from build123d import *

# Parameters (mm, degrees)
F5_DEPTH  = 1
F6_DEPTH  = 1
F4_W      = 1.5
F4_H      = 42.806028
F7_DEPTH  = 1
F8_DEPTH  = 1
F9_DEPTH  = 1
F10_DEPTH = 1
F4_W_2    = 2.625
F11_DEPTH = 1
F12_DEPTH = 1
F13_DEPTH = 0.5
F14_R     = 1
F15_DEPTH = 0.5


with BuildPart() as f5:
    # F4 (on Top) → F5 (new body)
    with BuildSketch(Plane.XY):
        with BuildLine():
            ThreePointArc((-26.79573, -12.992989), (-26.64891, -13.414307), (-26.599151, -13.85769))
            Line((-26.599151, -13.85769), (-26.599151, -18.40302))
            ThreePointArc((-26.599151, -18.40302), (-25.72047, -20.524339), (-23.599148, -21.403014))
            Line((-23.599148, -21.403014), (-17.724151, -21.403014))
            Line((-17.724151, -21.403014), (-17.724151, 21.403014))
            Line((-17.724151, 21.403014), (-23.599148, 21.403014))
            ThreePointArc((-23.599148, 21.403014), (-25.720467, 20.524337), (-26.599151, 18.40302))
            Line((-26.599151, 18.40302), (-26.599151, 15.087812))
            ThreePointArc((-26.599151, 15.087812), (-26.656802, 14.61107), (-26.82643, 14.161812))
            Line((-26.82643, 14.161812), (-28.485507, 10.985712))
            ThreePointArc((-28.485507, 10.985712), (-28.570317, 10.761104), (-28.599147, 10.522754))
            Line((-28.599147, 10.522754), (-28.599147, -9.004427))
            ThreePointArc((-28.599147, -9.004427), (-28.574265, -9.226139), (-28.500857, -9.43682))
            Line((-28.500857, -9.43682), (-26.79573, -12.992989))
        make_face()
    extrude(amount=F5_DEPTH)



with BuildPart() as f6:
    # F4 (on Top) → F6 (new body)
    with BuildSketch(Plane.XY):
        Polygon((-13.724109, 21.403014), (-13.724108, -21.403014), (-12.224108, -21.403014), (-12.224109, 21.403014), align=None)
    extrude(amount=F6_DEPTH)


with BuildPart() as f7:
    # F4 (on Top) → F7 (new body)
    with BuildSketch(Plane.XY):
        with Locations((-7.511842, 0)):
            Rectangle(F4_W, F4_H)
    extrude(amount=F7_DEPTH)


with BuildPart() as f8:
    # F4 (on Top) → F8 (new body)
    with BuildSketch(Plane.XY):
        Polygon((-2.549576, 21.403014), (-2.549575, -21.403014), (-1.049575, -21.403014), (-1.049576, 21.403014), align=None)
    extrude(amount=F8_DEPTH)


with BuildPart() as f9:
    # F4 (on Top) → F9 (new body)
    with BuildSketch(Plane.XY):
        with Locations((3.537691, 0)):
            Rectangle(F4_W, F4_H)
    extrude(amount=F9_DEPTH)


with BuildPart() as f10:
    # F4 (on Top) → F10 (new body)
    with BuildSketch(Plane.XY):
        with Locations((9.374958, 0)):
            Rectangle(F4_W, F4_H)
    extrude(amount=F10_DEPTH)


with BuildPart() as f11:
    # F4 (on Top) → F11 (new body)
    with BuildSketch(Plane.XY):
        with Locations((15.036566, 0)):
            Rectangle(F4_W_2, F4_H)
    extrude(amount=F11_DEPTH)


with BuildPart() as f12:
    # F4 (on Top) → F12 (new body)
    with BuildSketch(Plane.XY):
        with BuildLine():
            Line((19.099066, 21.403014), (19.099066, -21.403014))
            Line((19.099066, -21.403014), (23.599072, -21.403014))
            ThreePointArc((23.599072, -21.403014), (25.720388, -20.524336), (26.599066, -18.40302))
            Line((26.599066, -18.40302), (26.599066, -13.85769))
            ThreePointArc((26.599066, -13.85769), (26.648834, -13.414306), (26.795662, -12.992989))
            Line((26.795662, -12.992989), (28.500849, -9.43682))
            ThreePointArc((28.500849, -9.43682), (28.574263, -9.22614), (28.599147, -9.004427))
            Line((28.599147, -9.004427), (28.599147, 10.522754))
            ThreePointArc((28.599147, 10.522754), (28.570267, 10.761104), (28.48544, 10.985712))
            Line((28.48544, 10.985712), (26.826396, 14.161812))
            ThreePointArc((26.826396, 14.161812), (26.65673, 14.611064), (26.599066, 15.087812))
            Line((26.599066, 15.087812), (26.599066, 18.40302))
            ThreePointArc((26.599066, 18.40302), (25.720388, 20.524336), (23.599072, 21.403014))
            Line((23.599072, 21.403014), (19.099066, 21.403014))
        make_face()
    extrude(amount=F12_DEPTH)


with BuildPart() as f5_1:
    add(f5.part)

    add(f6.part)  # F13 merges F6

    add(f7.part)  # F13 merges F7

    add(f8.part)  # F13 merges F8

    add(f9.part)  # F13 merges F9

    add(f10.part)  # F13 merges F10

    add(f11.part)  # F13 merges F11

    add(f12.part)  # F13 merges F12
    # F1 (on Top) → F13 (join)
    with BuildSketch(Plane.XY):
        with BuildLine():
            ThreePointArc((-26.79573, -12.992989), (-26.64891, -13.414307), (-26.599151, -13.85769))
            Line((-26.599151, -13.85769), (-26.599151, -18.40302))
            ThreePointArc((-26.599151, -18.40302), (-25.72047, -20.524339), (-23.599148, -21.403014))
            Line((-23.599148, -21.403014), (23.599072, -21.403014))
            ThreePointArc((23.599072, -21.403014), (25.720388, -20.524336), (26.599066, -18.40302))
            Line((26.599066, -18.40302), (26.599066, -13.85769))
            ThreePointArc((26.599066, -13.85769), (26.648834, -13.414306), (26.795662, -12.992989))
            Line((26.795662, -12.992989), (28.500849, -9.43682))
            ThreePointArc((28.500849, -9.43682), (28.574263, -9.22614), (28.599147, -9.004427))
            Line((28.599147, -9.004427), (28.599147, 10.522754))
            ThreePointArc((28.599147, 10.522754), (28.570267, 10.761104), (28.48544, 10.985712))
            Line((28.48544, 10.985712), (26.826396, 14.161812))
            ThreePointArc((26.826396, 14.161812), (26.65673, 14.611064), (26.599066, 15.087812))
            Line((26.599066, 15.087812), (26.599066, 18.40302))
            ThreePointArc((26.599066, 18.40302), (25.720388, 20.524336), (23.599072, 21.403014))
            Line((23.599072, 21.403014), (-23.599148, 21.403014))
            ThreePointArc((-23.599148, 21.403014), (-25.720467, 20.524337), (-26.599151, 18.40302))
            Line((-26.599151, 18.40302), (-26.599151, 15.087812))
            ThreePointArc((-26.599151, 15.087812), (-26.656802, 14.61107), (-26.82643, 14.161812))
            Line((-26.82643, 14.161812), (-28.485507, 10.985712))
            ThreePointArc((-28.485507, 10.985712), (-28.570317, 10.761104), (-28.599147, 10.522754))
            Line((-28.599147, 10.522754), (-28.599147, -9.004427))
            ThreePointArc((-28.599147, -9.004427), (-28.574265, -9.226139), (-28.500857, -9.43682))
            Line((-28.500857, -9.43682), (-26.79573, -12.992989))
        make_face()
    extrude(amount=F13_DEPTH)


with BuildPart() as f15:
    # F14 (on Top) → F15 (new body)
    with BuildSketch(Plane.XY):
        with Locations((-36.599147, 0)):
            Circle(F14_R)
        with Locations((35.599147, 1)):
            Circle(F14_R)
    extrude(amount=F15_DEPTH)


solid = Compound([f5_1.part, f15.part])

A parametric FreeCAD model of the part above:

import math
import FreeCAD as App
import Part
import Sketcher
Q = App.Units.Quantity

doc = App.newDocument("Part")
body = doc.addObject("PartDesign::Body", "Body")

# Sketch on XY plane
sketch1 = body.newObject("Sketcher::SketchObject", "Sketch")
sketch1.AttachmentSupport = (doc.getObject("XY_Plane"), [""])
sketch1.MapMode = "FlatFace"
sketch1.addGeometry(Part.ArcOfCircle(Part.Circle(App.Vector(-28.599049, -13.857646, 0), App.Vector(0, 0, 1), 1.999898), math.radians(-0.001248), math.radians(25.616842)), False)
sketch1.addGeometry(Part.LineSegment(App.Vector(-26.599151, -13.85769, 0), App.Vector(-26.599151, -18.40302, 0)), False)
sketch1.addGeometry(Part.ArcOfCircle(Part.Circle(App.Vector(-23.599157, -18.40302, 0), App.Vector(0, 0, 1), 2.999994), math.radians(-179.999993), math.radians(-89.999835)), False)
sketch1.addGeometry(Part.LineSegment(App.Vector(-23.599148, -21.403014, 0), App.Vector(-17.724151, -21.403014, 0)), False)
sketch1.addGeometry(Part.LineSegment(App.Vector(-17.724151, -21.403014, 0), App.Vector(-17.724151, 21.403014, 0)), False)
sketch1.addGeometry(Part.LineSegment(App.Vector(-17.724151, 21.403014, 0), App.Vector(-23.599148, 21.403014, 0)), False)
sketch1.addGeometry(Part.ArcOfCircle(Part.Circle(App.Vector(-23.599148, 18.403011, 0), App.Vector(0, 0, 1), 3.000003), math.radians(89.999998), math.radians(179.99983)), False)
sketch1.addGeometry(Part.LineSegment(App.Vector(-26.599151, 18.40302, 0), App.Vector(-26.599151, 15.087812, 0)), False)
sketch1.addGeometry(Part.ArcOfCircle(Part.Circle(App.Vector(-28.599198, 15.087815, 0), App.Vector(0, 0, 1), 2.000047), math.radians(-27.58026), math.radians(-0.000084)), False)
sketch1.addGeometry(Part.LineSegment(App.Vector(-26.82643, 14.161812, 0), App.Vector(-28.485507, 10.985712, 0)), False)
sketch1.addGeometry(Part.ArcOfCircle(Part.Circle(App.Vector(-27.599153, 10.522717, 0), App.Vector(0, 0, 1), 0.999994), math.radians(152.419269), math.radians(179.997864)), False)
sketch1.addGeometry(Part.LineSegment(App.Vector(-28.599147, 10.522754, 0), App.Vector(-28.599147, -9.004427, 0)), False)
sketch1.addGeometry(Part.ArcOfCircle(Part.Circle(App.Vector(-27.59892, -9.004427, 0), App.Vector(0, 0, 1), 1.000227), math.radians(179.999993), math.radians(205.613293)), False)
sketch1.addGeometry(Part.LineSegment(App.Vector(-28.500857, -9.43682, 0), App.Vector(-26.79573, -12.992989, 0)), False)
sketch1.addConstraint(Sketcher.Constraint("Coincident", 0, 1, 1, 1))
sketch1.addConstraint(Sketcher.Constraint("Tangent", 1, 2, 2, 1))
sketch1.addConstraint(Sketcher.Constraint("Coincident", 2, 2, 3, 1))
sketch1.addConstraint(Sketcher.Constraint("Coincident", 3, 2, 4, 1))
sketch1.addConstraint(Sketcher.Constraint("Coincident", 4, 2, 5, 1))
sketch1.addConstraint(Sketcher.Constraint("Tangent", 5, 2, 6, 1))
sketch1.addConstraint(Sketcher.Constraint("Coincident", 6, 2, 7, 1))
sketch1.addConstraint(Sketcher.Constraint("Tangent", 7, 2, 8, 2))
sketch1.addConstraint(Sketcher.Constraint("Coincident", 8, 1, 9, 1))
sketch1.addConstraint(Sketcher.Constraint("Coincident", 9, 2, 10, 1))
sketch1.addConstraint(Sketcher.Constraint("Coincident", 10, 2, 11, 1))
sketch1.addConstraint(Sketcher.Constraint("Tangent", 11, 2, 12, 1))
sketch1.addConstraint(Sketcher.Constraint("Coincident", 12, 2, 13, 1))
sketch1.addConstraint(Sketcher.Constraint("Coincident", 13, 2, 0, 2))
sketch1.addConstraint(Sketcher.Constraint("Vertical", 1))
sketch1.addConstraint(Sketcher.Constraint("Horizontal", 3))
sketch1.addConstraint(Sketcher.Constraint("Vertical", 4))
sketch1.addConstraint(Sketcher.Constraint("Horizontal", 5))
sketch1.addConstraint(Sketcher.Constraint("Vertical", 7))
sketch1.addConstraint(Sketcher.Constraint("Vertical", 11))
sketch1.addConstraint(Sketcher.Constraint("Symmetric", 2, 2, 5, 2, -1))
sketch1.addConstraint(Sketcher.Constraint("Symmetric", 1, 2, 6, 2, -1))
sketch1.addConstraint(Sketcher.Constraint("DistanceX", 10, 3, 0, 1, Q("1.000002 mm")))
sketch1.addConstraint(Sketcher.Constraint("Radius", 0, Q("1.999898 mm")))
sketch1.addConstraint(Sketcher.Constraint("Radius", 2, Q("2.999994 mm")))
sketch1.addConstraint(Sketcher.Constraint("Radius", 6, Q("3.000003 mm")))
sketch1.addConstraint(Sketcher.Constraint("Radius", 8, Q("2.000047 mm")))
sketch1.addConstraint(Sketcher.Constraint("Radius", 10, Q("0.999994 mm")))
sketch1.addConstraint(Sketcher.Constraint("Radius", 12, Q("1.000227 mm")))
sketch1.addConstraint(Sketcher.Constraint("DistanceX", 1, 2, 3, 2, Q("8.875 mm")))
sketch1.addConstraint(Sketcher.Constraint("DistanceY", 8, 1, 7, 2, Q("0.926 mm")))
sketch1.addConstraint(Sketcher.Constraint("DistanceY", 1, 2, 1, 1, Q("4.54533 mm")))
sketch1.addConstraint(Sketcher.Constraint("DistanceY", 7, 2, 7, 1, Q("3.315208 mm")))
sketch1.addConstraint(Sketcher.Constraint("DistanceY", 11, 2, 11, 1, Q("19.527181 mm")))
sketch1.addConstraint(Sketcher.Constraint("DistanceY", 10, 3, 8, 3, Q("4.565098 mm")))
sketch1.addConstraint(Sketcher.Constraint("DistanceY", 9, 2, 8, 1, Q("3.1761 mm")))
sketch1.addConstraint(Sketcher.Constraint("DistanceY", 1, 2, 12, 2, Q("8.9662 mm")))
sketch1.addConstraint(Sketcher.Constraint("DistanceY", 0, 1, 13, 2, Q("0.864701 mm")))
sketch1.addConstraint(Sketcher.Constraint("Distance", 13, Q("3.94383 mm")))
sketch1.addConstraint(Sketcher.Constraint("DistanceY", 4, 1, 4, 2, Q("42.806028 mm")))
sketch1.addConstraint(Sketcher.Constraint("DistanceX", 0, 3, -1, 1, Q("28.599049 mm")))
sketch1.addConstraint(Sketcher.Constraint("DistanceX", 13, 2, -1, 1, Q("26.79573 mm")))
pad1 = body.newObject("PartDesign::Pad", "Pad")
pad1.Profile = sketch1
pad1.Length = 1
body2 = doc.addObject("PartDesign::Body", "Body001")

# Sketch on XY plane
sketch2 = body2.newObject("Sketcher::SketchObject", "Sketch001")
sketch2.AttachmentSupport = (doc.getObject("XY_Plane001"), [""])
sketch2.MapMode = "FlatFace"
sketch2.addGeometry(Part.LineSegment(App.Vector(-13.724109, 21.403014, 0), App.Vector(-13.724108, -21.403014, 0)), False)
sketch2.addGeometry(Part.LineSegment(App.Vector(-13.724108, -21.403014, 0), App.Vector(-12.224108, -21.403014, 0)), False)
sketch2.addGeometry(Part.LineSegment(App.Vector(-12.224108, -21.403014, 0), App.Vector(-12.224109, 21.403014, 0)), False)
sketch2.addGeometry(Part.LineSegment(App.Vector(-12.224109, 21.403014, 0), App.Vector(-13.724109, 21.403014, 0)), False)
sketch2.addConstraint(Sketcher.Constraint("Coincident", 0, 2, 1, 1))
sketch2.addConstraint(Sketcher.Constraint("Coincident", 1, 2, 2, 1))
sketch2.addConstraint(Sketcher.Constraint("Coincident", 2, 2, 3, 1))
sketch2.addConstraint(Sketcher.Constraint("Coincident", 3, 2, 0, 1))
sketch2.addConstraint(Sketcher.Constraint("Vertical", 0))
sketch2.addConstraint(Sketcher.Constraint("Horizontal", 1))
sketch2.addConstraint(Sketcher.Constraint("Vertical", 2))
sketch2.addConstraint(Sketcher.Constraint("Horizontal", 3))
sketch2.addConstraint(Sketcher.Constraint("DistanceX", 1, 1, 1, 2, Q("1.5 mm")))
sketch2.addConstraint(Sketcher.Constraint("DistanceY", 0, 2, 0, 1, Q("42.806028 mm")))
sketch2.addConstraint(Sketcher.Constraint("DistanceX", 2, 2, -1, 1, Q("12.224109 mm")))
sketch2.addConstraint(Sketcher.Constraint("DistanceY", 0, 2, -1, 1, Q("21.403014 mm")))
pad2 = body2.newObject("PartDesign::Pad", "Pad001")
pad2.Profile = sketch2
pad2.Length = 1
body3 = doc.addObject("PartDesign::Body", "Body002")

# Sketch on XY plane
sketch3 = body3.newObject("Sketcher::SketchObject", "Sketch002")
sketch3.AttachmentSupport = (doc.getObject("XY_Plane002"), [""])
sketch3.MapMode = "FlatFace"
sketch3.addGeometry(Part.LineSegment(App.Vector(-8.261842, 21.403014, 0), App.Vector(-8.261842, -21.403014, 0)), False)
sketch3.addGeometry(Part.LineSegment(App.Vector(-8.261842, -21.403014, 0), App.Vector(-6.761842, -21.403014, 0)), False)
sketch3.addGeometry(Part.LineSegment(App.Vector(-6.761842, -21.403014, 0), App.Vector(-6.761842, 21.403014, 0)), False)
sketch3.addGeometry(Part.LineSegment(App.Vector(-6.761842, 21.403014, 0), App.Vector(-8.261842, 21.403014, 0)), False)
sketch3.addConstraint(Sketcher.Constraint("Coincident", 0, 2, 1, 1))
sketch3.addConstraint(Sketcher.Constraint("Coincident", 1, 2, 2, 1))
sketch3.addConstraint(Sketcher.Constraint("Coincident", 2, 2, 3, 1))
sketch3.addConstraint(Sketcher.Constraint("Coincident", 3, 2, 0, 1))
sketch3.addConstraint(Sketcher.Constraint("Vertical", 0))
sketch3.addConstraint(Sketcher.Constraint("Horizontal", 1))
sketch3.addConstraint(Sketcher.Constraint("Vertical", 2))
sketch3.addConstraint(Sketcher.Constraint("Horizontal", 3))
sketch3.addConstraint(Sketcher.Constraint("DistanceX", 1, 1, 1, 2, Q("1.5 mm")))
sketch3.addConstraint(Sketcher.Constraint("DistanceY", 0, 2, 0, 1, Q("42.806028 mm")))
sketch3.addConstraint(Sketcher.Constraint("DistanceX", 1, 2, -1, 1, Q("6.761842 mm")))
sketch3.addConstraint(Sketcher.Constraint("DistanceY", 0, 2, -1, 1, Q("21.403014 mm")))
pad3 = body3.newObject("PartDesign::Pad", "Pad002")
pad3.Profile = sketch3
pad3.Length = 1
body4 = doc.addObject("PartDesign::Body", "Body003")

# Sketch on XY plane
sketch4 = body4.newObject("Sketcher::SketchObject", "Sketch003")
sketch4.AttachmentSupport = (doc.getObject("XY_Plane003"), [""])
sketch4.MapMode = "FlatFace"
sketch4.addGeometry(Part.LineSegment(App.Vector(-2.549576, 21.403014, 0), App.Vector(-2.549575, -21.403014, 0)), False)
sketch4.addGeometry(Part.LineSegment(App.Vector(-2.549575, -21.403014, 0), App.Vector(-1.049575, -21.403014, 0)), False)
sketch4.addGeometry(Part.LineSegment(App.Vector(-1.049575, -21.403014, 0), App.Vector(-1.049576, 21.403014, 0)), False)
sketch4.addGeometry(Part.LineSegment(App.Vector(-1.049576, 21.403014, 0), App.Vector(-2.549576, 21.403014, 0)), False)
sketch4.addConstraint(Sketcher.Constraint("Coincident", 0, 2, 1, 1))
sketch4.addConstraint(Sketcher.Constraint("Coincident", 1, 2, 2, 1))
sketch4.addConstraint(Sketcher.Constraint("Coincident", 2, 2, 3, 1))
sketch4.addConstraint(Sketcher.Constraint("Coincident", 3, 2, 0, 1))
sketch4.addConstraint(Sketcher.Constraint("Vertical", 0))
sketch4.addConstraint(Sketcher.Constraint("Horizontal", 1))
sketch4.addConstraint(Sketcher.Constraint("Vertical", 2))
sketch4.addConstraint(Sketcher.Constraint("Horizontal", 3))
sketch4.addConstraint(Sketcher.Constraint("DistanceX", 1, 1, 1, 2, Q("1.5 mm")))
sketch4.addConstraint(Sketcher.Constraint("DistanceY", 0, 2, 0, 1, Q("42.806028 mm")))
sketch4.addConstraint(Sketcher.Constraint("DistanceX", 0, 2, -1, 1, Q("2.549575 mm")))
sketch4.addConstraint(Sketcher.Constraint("DistanceY", 0, 2, -1, 1, Q("21.403014 mm")))
pad4 = body4.newObject("PartDesign::Pad", "Pad003")
pad4.Profile = sketch4
pad4.Length = 1
body5 = doc.addObject("PartDesign::Body", "Body004")

# Sketch on XY plane
sketch5 = body5.newObject("Sketcher::SketchObject", "Sketch004")
sketch5.AttachmentSupport = (doc.getObject("XY_Plane004"), [""])
sketch5.MapMode = "FlatFace"
sketch5.addGeometry(Part.LineSegment(App.Vector(2.787691, 21.403014, 0), App.Vector(2.787691, -21.403014, 0)), False)
sketch5.addGeometry(Part.LineSegment(App.Vector(2.787691, -21.403014, 0), App.Vector(4.287691, -21.403014, 0)), False)
sketch5.addGeometry(Part.LineSegment(App.Vector(4.287691, -21.403014, 0), App.Vector(4.287691, 21.403014, 0)), False)
sketch5.addGeometry(Part.LineSegment(App.Vector(4.287691, 21.403014, 0), App.Vector(2.787691, 21.403014, 0)), False)
sketch5.addConstraint(Sketcher.Constraint("Coincident", 0, 2, 1, 1))
sketch5.addConstraint(Sketcher.Constraint("Coincident", 1, 2, 2, 1))
sketch5.addConstraint(Sketcher.Constraint("Coincident", 2, 2, 3, 1))
sketch5.addConstraint(Sketcher.Constraint("Coincident", 3, 2, 0, 1))
sketch5.addConstraint(Sketcher.Constraint("Vertical", 0))
sketch5.addConstraint(Sketcher.Constraint("Horizontal", 1))
sketch5.addConstraint(Sketcher.Constraint("Vertical", 2))
sketch5.addConstraint(Sketcher.Constraint("Horizontal", 3))
sketch5.addConstraint(Sketcher.Constraint("DistanceX", 1, 1, 1, 2, Q("1.5 mm")))
sketch5.addConstraint(Sketcher.Constraint("DistanceY", 0, 2, 0, 1, Q("42.806028 mm")))
sketch5.addConstraint(Sketcher.Constraint("DistanceX", -1, 1, 0, 2, Q("2.787691 mm")))
sketch5.addConstraint(Sketcher.Constraint("DistanceY", 0, 2, -1, 1, Q("21.403014 mm")))
pad5 = body5.newObject("PartDesign::Pad", "Pad004")
pad5.Profile = sketch5
pad5.Length = 1
body6 = doc.addObject("PartDesign::Body", "Body005")

# Sketch on XY plane
sketch6 = body6.newObject("Sketcher::SketchObject", "Sketch005")
sketch6.AttachmentSupport = (doc.getObject("XY_Plane005"), [""])
sketch6.MapMode = "FlatFace"
sketch6.addGeometry(Part.LineSegment(App.Vector(8.624958, 21.403014, 0), App.Vector(8.624958, -21.403014, 0)), False)
sketch6.addGeometry(Part.LineSegment(App.Vector(8.624958, -21.403014, 0), App.Vector(10.124958, -21.403014, 0)), False)
sketch6.addGeometry(Part.LineSegment(App.Vector(10.124958, -21.403014, 0), App.Vector(10.124958, 21.403014, 0)), False)
sketch6.addGeometry(Part.LineSegment(App.Vector(10.124958, 21.403014, 0), App.Vector(8.624958, 21.403014, 0)), False)
sketch6.addConstraint(Sketcher.Constraint("Coincident", 0, 2, 1, 1))
sketch6.addConstraint(Sketcher.Constraint("Coincident", 1, 2, 2, 1))
sketch6.addConstraint(Sketcher.Constraint("Coincident", 2, 2, 3, 1))
sketch6.addConstraint(Sketcher.Constraint("Coincident", 3, 2, 0, 1))
sketch6.addConstraint(Sketcher.Constraint("Vertical", 0))
sketch6.addConstraint(Sketcher.Constraint("Horizontal", 1))
sketch6.addConstraint(Sketcher.Constraint("Vertical", 2))
sketch6.addConstraint(Sketcher.Constraint("Horizontal", 3))
sketch6.addConstraint(Sketcher.Constraint("DistanceX", 1, 1, 1, 2, Q("1.5 mm")))
sketch6.addConstraint(Sketcher.Constraint("DistanceY", 0, 2, 0, 1, Q("42.806028 mm")))
sketch6.addConstraint(Sketcher.Constraint("DistanceX", -1, 1, 0, 2, Q("8.624958 mm")))
sketch6.addConstraint(Sketcher.Constraint("DistanceY", 0, 2, -1, 1, Q("21.403014 mm")))
pad6 = body6.newObject("PartDesign::Pad", "Pad005")
pad6.Profile = sketch6
pad6.Length = 1
body7 = doc.addObject("PartDesign::Body", "Body006")

# Sketch on XY plane
sketch7 = body7.newObject("Sketcher::SketchObject", "Sketch006")
sketch7.AttachmentSupport = (doc.getObject("XY_Plane006"), [""])
sketch7.MapMode = "FlatFace"
sketch7.addGeometry(Part.LineSegment(App.Vector(13.724066, 21.403014, 0), App.Vector(13.724066, -21.403014, 0)), False)
sketch7.addGeometry(Part.LineSegment(App.Vector(13.724066, -21.403014, 0), App.Vector(16.349066, -21.403014, 0)), False)
sketch7.addGeometry(Part.LineSegment(App.Vector(16.349066, -21.403014, 0), App.Vector(16.349066, 21.403014, 0)), False)
sketch7.addGeometry(Part.LineSegment(App.Vector(16.349066, 21.403014, 0), App.Vector(13.724066, 21.403014, 0)), False)
sketch7.addConstraint(Sketcher.Constraint("Coincident", 0, 2, 1, 1))
sketch7.addConstraint(Sketcher.Constraint("Coincident", 1, 2, 2, 1))
sketch7.addConstraint(Sketcher.Constraint("Coincident", 2, 2, 3, 1))
sketch7.addConstraint(Sketcher.Constraint("Coincident", 3, 2, 0, 1))
sketch7.addConstraint(Sketcher.Constraint("Vertical", 0))
sketch7.addConstraint(Sketcher.Constraint("Horizontal", 1))
sketch7.addConstraint(Sketcher.Constraint("Vertical", 2))
sketch7.addConstraint(Sketcher.Constraint("Horizontal", 3))
sketch7.addConstraint(Sketcher.Constraint("DistanceX", 1, 1, 1, 2, Q("2.625 mm")))
sketch7.addConstraint(Sketcher.Constraint("DistanceY", 0, 2, 0, 1, Q("42.806028 mm")))
sketch7.addConstraint(Sketcher.Constraint("DistanceX", -1, 1, 0, 2, Q("13.724066 mm")))
sketch7.addConstraint(Sketcher.Constraint("DistanceY", 0, 2, -1, 1, Q("21.403014 mm")))
pad7 = body7.newObject("PartDesign::Pad", "Pad006")
pad7.Profile = sketch7
pad7.Length = 1
body8 = doc.addObject("PartDesign::Body", "Body007")

# Sketch on XY plane
sketch8 = body8.newObject("Sketcher::SketchObject", "Sketch007")
sketch8.AttachmentSupport = (doc.getObject("XY_Plane007"), [""])
sketch8.MapMode = "FlatFace"
sketch8.addGeometry(Part.LineSegment(App.Vector(19.099066, 21.403014, 0), App.Vector(19.099066, -21.403014, 0)), False)
sketch8.addGeometry(Part.LineSegment(App.Vector(19.099066, -21.403014, 0), App.Vector(23.599072, -21.403014, 0)), False)
sketch8.addGeometry(Part.ArcOfCircle(Part.Circle(App.Vector(23.599072, -18.40302, 0), App.Vector(0, 0, 1), 2.999994), math.radians(-89.999993), math.radians(-0.000007)), False)
sketch8.addGeometry(Part.LineSegment(App.Vector(26.599066, -18.40302, 0), App.Vector(26.599066, -13.85769, 0)), False)
sketch8.addGeometry(Part.ArcOfCircle(Part.Circle(App.Vector(28.598991, -13.857688, 0), App.Vector(0, 0, 1), 1.999925), math.radians(154.382209), math.radians(180.000055)), False)
sketch8.addGeometry(Part.LineSegment(App.Vector(26.795662, -12.992989, 0), App.Vector(28.500849, -9.43682, 0)), False)
sketch8.addGeometry(Part.ArcOfCircle(Part.Circle(App.Vector(27.598998, -9.004428, 0), App.Vector(0, 0, 1), 1.000149), math.radians(-25.615358), math.radians(0.000057)), False)
sketch8.addGeometry(Part.LineSegment(App.Vector(28.599147, -9.004427, 0), App.Vector(28.599147, 10.522754, 0)), False)
sketch8.addGeometry(Part.ArcOfCircle(Part.Circle(App.Vector(27.598546, 10.52244, 0), App.Vector(0, 0, 1), 1.000601), math.radians(0.018007), math.radians(27.580501)), False)
sketch8.addGeometry(Part.LineSegment(App.Vector(28.48544, 10.985712, 0), App.Vector(26.826396, 14.161812, 0)), False)
sketch8.addGeometry(Part.ArcOfCircle(Part.Circle(App.Vector(28.598706, 15.087813, 0), App.Vector(0, 0, 1), 1.99964), math.radians(-179.99998), math.radians(-152.413724)), False)
sketch8.addGeometry(Part.LineSegment(App.Vector(26.599066, 15.087812, 0), App.Vector(26.599066, 18.40302, 0)), False)
sketch8.addGeometry(Part.ArcOfCircle(Part.Circle(App.Vector(23.599072, 18.40302, 0), App.Vector(0, 0, 1), 2.999994), math.radians(0.000007), math.radians(89.999993)), False)
sketch8.addGeometry(Part.LineSegment(App.Vector(23.599072, 21.403014, 0), App.Vector(19.099066, 21.403014, 0)), False)
sketch8.addConstraint(Sketcher.Constraint("Coincident", 0, 2, 1, 1))
sketch8.addConstraint(Sketcher.Constraint("Tangent", 1, 2, 2, 1))
sketch8.addConstraint(Sketcher.Constraint("Tangent", 2, 2, 3, 1))
sketch8.addConstraint(Sketcher.Constraint("Tangent", 3, 2, 4, 2))
sketch8.addConstraint(Sketcher.Constraint("Tangent", 4, 1, 5, 1))
sketch8.addConstraint(Sketcher.Constraint("Coincident", 5, 2, 6, 1))
sketch8.addConstraint(Sketcher.Constraint("Tangent", 6, 2, 7, 1))
sketch8.addConstraint(Sketcher.Constraint("Coincident", 7, 2, 8, 1))
sketch8.addConstraint(Sketcher.Constraint("Tangent", 8, 2, 9, 1))
sketch8.addConstraint(Sketcher.Constraint("Coincident", 9, 2, 10, 2))
sketch8.addConstraint(Sketcher.Constraint("Tangent", 10, 1, 11, 1))
sketch8.addConstraint(Sketcher.Constraint("Tangent", 11, 2, 12, 1))
sketch8.addConstraint(Sketcher.Constraint("Tangent", 12, 2, 13, 1))
sketch8.addConstraint(Sketcher.Constraint("Coincident", 13, 2, 0, 1))
sketch8.addConstraint(Sketcher.Constraint("Vertical", 0))
sketch8.addConstraint(Sketcher.Constraint("Horizontal", 1))
sketch8.addConstraint(Sketcher.Constraint("Vertical", 3))
sketch8.addConstraint(Sketcher.Constraint("Vertical", 7))
sketch8.addConstraint(Sketcher.Constraint("Vertical", 11))
sketch8.addConstraint(Sketcher.Constraint("Horizontal", 13))
sketch8.addConstraint(Sketcher.Constraint("Equal", 2, 12))
sketch8.addConstraint(Sketcher.Constraint("Symmetric", 2, 3, 12, 3, -1))
sketch8.addConstraint(Sketcher.Constraint("Radius", 8, Q("1.000601 mm")))
sketch8.addConstraint(Sketcher.Constraint("DistanceX", 0, 2, 2, 2, Q("7.5 mm")))
sketch8.addConstraint(Sketcher.Constraint("Radius", 6, Q("1.000149 mm")))
sketch8.addConstraint(Sketcher.Constraint("Radius", 10, Q("1.99964 mm")))
sketch8.addConstraint(Sketcher.Constraint("Radius", 2, Q("2.999994 mm")))
sketch8.addConstraint(Sketcher.Constraint("Radius", 4, Q("1.999925 mm")))
sketch8.addConstraint(Sketcher.Constraint("DistanceY", 9, 2, 10, 3, Q("0.926001 mm")))
sketch8.addConstraint(Sketcher.Constraint("Distance", 9, Q("3.5833 mm")))
sketch8.addConstraint(Sketcher.Constraint("DistanceY", 3, 1, 3, 2, Q("4.54533 mm")))
sketch8.addConstraint(Sketcher.Constraint("DistanceY", 7, 1, 7, 2, Q("19.527181 mm")))
sketch8.addConstraint(Sketcher.Constraint("DistanceY", 11, 1, 11, 2, Q("3.315208 mm")))
sketch8.addConstraint(Sketcher.Constraint("DistanceY", 4, 3, 10, 3, Q("28.945501 mm")))
sketch8.addConstraint(Sketcher.Constraint("DistanceY", 3, 2, 4, 1, Q("0.864701 mm")))
sketch8.addConstraint(Sketcher.Constraint("DistanceY", 2, 2, 5, 2, Q("8.9662 mm")))
sketch8.addConstraint(Sketcher.Constraint("DistanceY", 8, 2, 10, 3, Q("4.102101 mm")))
sketch8.addConstraint(Sketcher.Constraint("DistanceX", -1, 1, 2, 3, Q("23.599072 mm")))
pad8 = body8.newObject("PartDesign::Pad", "Pad007")
pad8.Profile = sketch8
pad8.Length = 1
body.AllowCompound = True
doc.recompute()

boolean = body.newObject("PartDesign::Boolean", "Boolean")
boolean.Type = "Fuse"
boolean.addObjects([body2])
doc.recompute()

boolean2 = body.newObject("PartDesign::Boolean", "Boolean001")
boolean2.Type = "Fuse"
boolean2.addObjects([body3])
doc.recompute()

boolean3 = body.newObject("PartDesign::Boolean", "Boolean002")
boolean3.Type = "Fuse"
boolean3.addObjects([body4])
doc.recompute()

boolean4 = body.newObject("PartDesign::Boolean", "Boolean003")
boolean4.Type = "Fuse"
boolean4.addObjects([body5])
doc.recompute()

boolean5 = body.newObject("PartDesign::Boolean", "Boolean004")
boolean5.Type = "Fuse"
boolean5.addObjects([body6])
doc.recompute()

boolean6 = body.newObject("PartDesign::Boolean", "Boolean005")
boolean6.Type = "Fuse"
boolean6.addObjects([body7])
doc.recompute()

boolean7 = body.newObject("PartDesign::Boolean", "Boolean006")
boolean7.Type = "Fuse"
boolean7.addObjects([body8])

# Sketch on XY plane
sketch9 = body.newObject("Sketcher::SketchObject", "Sketch008")
sketch9.AttachmentSupport = (doc.getObject("XY_Plane"), [""])
sketch9.MapMode = "FlatFace"
sketch9.addGeometry(Part.ArcOfCircle(Part.Circle(App.Vector(-28.599049, -13.857646, 0), App.Vector(0, 0, 1), 1.999898), math.radians(-0.001248), math.radians(25.616842)), False)
sketch9.addGeometry(Part.LineSegment(App.Vector(-26.599151, -13.85769, 0), App.Vector(-26.599151, -18.40302, 0)), False)
sketch9.addGeometry(Part.ArcOfCircle(Part.Circle(App.Vector(-23.599157, -18.40302, 0), App.Vector(0, 0, 1), 2.999994), math.radians(-179.999993), math.radians(-89.999835)), False)
sketch9.addGeometry(Part.LineSegment(App.Vector(-23.599148, -21.403014, 0), App.Vector(23.599072, -21.403014, 0)), False)
sketch9.addGeometry(Part.ArcOfCircle(Part.Circle(App.Vector(23.599072, -18.40302, 0), App.Vector(0, 0, 1), 2.999994), math.radians(-89.999993), math.radians(-0.000007)), False)
sketch9.addGeometry(Part.LineSegment(App.Vector(26.599066, -18.40302, 0), App.Vector(26.599066, -13.85769, 0)), False)
sketch9.addGeometry(Part.ArcOfCircle(Part.Circle(App.Vector(28.598991, -13.857688, 0), App.Vector(0, 0, 1), 1.999925), math.radians(154.382209), math.radians(180.000055)), False)
sketch9.addGeometry(Part.LineSegment(App.Vector(26.795662, -12.992989, 0), App.Vector(28.500849, -9.43682, 0)), False)
sketch9.addGeometry(Part.ArcOfCircle(Part.Circle(App.Vector(27.598998, -9.004428, 0), App.Vector(0, 0, 1), 1.000149), math.radians(-25.615358), math.radians(0.000057)), False)
sketch9.addGeometry(Part.LineSegment(App.Vector(28.599147, -9.004427, 0), App.Vector(28.599147, 10.522754, 0)), False)
sketch9.addGeometry(Part.ArcOfCircle(Part.Circle(App.Vector(27.598546, 10.52244, 0), App.Vector(0, 0, 1), 1.000601), math.radians(0.018007), math.radians(27.580501)), False)
sketch9.addGeometry(Part.LineSegment(App.Vector(28.48544, 10.985712, 0), App.Vector(26.826396, 14.161812, 0)), False)
sketch9.addGeometry(Part.ArcOfCircle(Part.Circle(App.Vector(28.598706, 15.087813, 0), App.Vector(0, 0, 1), 1.99964), math.radians(-179.99998), math.radians(-152.413724)), False)
sketch9.addGeometry(Part.LineSegment(App.Vector(26.599066, 15.087812, 0), App.Vector(26.599066, 18.40302, 0)), False)
sketch9.addGeometry(Part.ArcOfCircle(Part.Circle(App.Vector(23.599072, 18.40302, 0), App.Vector(0, 0, 1), 2.999994), math.radians(0.000007), math.radians(89.999993)), False)
sketch9.addGeometry(Part.LineSegment(App.Vector(23.599072, 21.403014, 0), App.Vector(-23.599148, 21.403014, 0)), False)
sketch9.addGeometry(Part.ArcOfCircle(Part.Circle(App.Vector(-23.599148, 18.403011, 0), App.Vector(0, 0, 1), 3.000003), math.radians(89.999998), math.radians(179.99983)), False)
sketch9.addGeometry(Part.LineSegment(App.Vector(-26.599151, 18.40302, 0), App.Vector(-26.599151, 15.087812, 0)), False)
sketch9.addGeometry(Part.ArcOfCircle(Part.Circle(App.Vector(-28.599198, 15.087815, 0), App.Vector(0, 0, 1), 2.000047), math.radians(-27.58026), math.radians(-0.000084)), False)
sketch9.addGeometry(Part.LineSegment(App.Vector(-26.82643, 14.161812, 0), App.Vector(-28.485507, 10.985712, 0)), False)
sketch9.addGeometry(Part.ArcOfCircle(Part.Circle(App.Vector(-27.599153, 10.522717, 0), App.Vector(0, 0, 1), 0.999994), math.radians(152.419269), math.radians(179.997864)), False)
sketch9.addGeometry(Part.LineSegment(App.Vector(-28.599147, 10.522754, 0), App.Vector(-28.599147, -9.004427, 0)), False)
sketch9.addGeometry(Part.ArcOfCircle(Part.Circle(App.Vector(-27.59892, -9.004427, 0), App.Vector(0, 0, 1), 1.000227), math.radians(179.999993), math.radians(205.613293)), False)
sketch9.addGeometry(Part.LineSegment(App.Vector(-28.500857, -9.43682, 0), App.Vector(-26.79573, -12.992989, 0)), False)
sketch9.addConstraint(Sketcher.Constraint("Coincident", 0, 1, 1, 1))
sketch9.addConstraint(Sketcher.Constraint("Coincident", 1, 2, 2, 1))
sketch9.addConstraint(Sketcher.Constraint("Coincident", 2, 2, 3, 1))
sketch9.addConstraint(Sketcher.Constraint("Coincident", 3, 2, 4, 1))
sketch9.addConstraint(Sketcher.Constraint("Coincident", 4, 2, 5, 1))
sketch9.addConstraint(Sketcher.Constraint("Coincident", 5, 2, 6, 2))
sketch9.addConstraint(Sketcher.Constraint("Coincident", 6, 1, 7, 1))
sketch9.addConstraint(Sketcher.Constraint("Coincident", 7, 2, 8, 1))
sketch9.addConstraint(Sketcher.Constraint("Coincident", 8, 2, 9, 1))
sketch9.addConstraint(Sketcher.Constraint("Coincident", 9, 2, 10, 1))
sketch9.addConstraint(Sketcher.Constraint("Coincident", 10, 2, 11, 1))
sketch9.addConstraint(Sketcher.Constraint("Coincident", 11, 2, 12, 2))
sketch9.addConstraint(Sketcher.Constraint("Coincident", 12, 1, 13, 1))
sketch9.addConstraint(Sketcher.Constraint("Coincident", 13, 2, 14, 1))
sketch9.addConstraint(Sketcher.Constraint("Coincident", 14, 2, 15, 1))
sketch9.addConstraint(Sketcher.Constraint("Coincident", 15, 2, 16, 1))
sketch9.addConstraint(Sketcher.Constraint("Coincident", 16, 2, 17, 1))
sketch9.addConstraint(Sketcher.Constraint("Coincident", 17, 2, 18, 2))
sketch9.addConstraint(Sketcher.Constraint("Coincident", 18, 1, 19, 1))
sketch9.addConstraint(Sketcher.Constraint("Coincident", 19, 2, 20, 1))
sketch9.addConstraint(Sketcher.Constraint("Coincident", 20, 2, 21, 1))
sketch9.addConstraint(Sketcher.Constraint("Coincident", 21, 2, 22, 1))
sketch9.addConstraint(Sketcher.Constraint("Coincident", 22, 2, 23, 1))
sketch9.addConstraint(Sketcher.Constraint("Coincident", 23, 2, 0, 2))
sketch9.addConstraint(Sketcher.Constraint("Vertical", 1))
sketch9.addConstraint(Sketcher.Constraint("Horizontal", 3))
sketch9.addConstraint(Sketcher.Constraint("Vertical", 5))
sketch9.addConstraint(Sketcher.Constraint("Vertical", 9))
sketch9.addConstraint(Sketcher.Constraint("Vertical", 13))
sketch9.addConstraint(Sketcher.Constraint("Horizontal", 15))
sketch9.addConstraint(Sketcher.Constraint("Vertical", 17))
sketch9.addConstraint(Sketcher.Constraint("Vertical", 21))
sketch9.addConstraint(Sketcher.Constraint("DistanceX", 20, 3, 0, 1, Q("1.000002 mm")))
sketch9.addConstraint(Sketcher.Constraint("DistanceX", 20, 3, 16, 2, Q("1.000002 mm")))
sketch9.addConstraint(Sketcher.Constraint("Radius", 10, Q("1.000601 mm")))
sketch9.addConstraint(Sketcher.Constraint("Radius", 8, Q("1.000149 mm")))
sketch9.addConstraint(Sketcher.Constraint("Radius", 12, Q("1.99964 mm")))
sketch9.addConstraint(Sketcher.Constraint("Radius", 0, Q("1.999898 mm")))
sketch9.addConstraint(Sketcher.Constraint("Radius", 2, Q("2.999994 mm")))
sketch9.addConstraint(Sketcher.Constraint("Radius", 4, Q("2.999994 mm")))
sketch9.addConstraint(Sketcher.Constraint("Radius", 6, Q("1.999925 mm")))
sketch9.addConstraint(Sketcher.Constraint("Radius", 14, Q("2.999994 mm")))
sketch9.addConstraint(Sketcher.Constraint("Radius", 16, Q("3.000003 mm")))
sketch9.addConstraint(Sketcher.Constraint("Radius", 18, Q("2.000047 mm")))
sketch9.addConstraint(Sketcher.Constraint("Radius", 20, Q("0.999994 mm")))
sketch9.addConstraint(Sketcher.Constraint("Radius", 22, Q("1.000227 mm")))
sketch9.addConstraint(Sketcher.Constraint("DistanceY", 11, 2, 12, 3, Q("0.926001 mm")))
sketch9.addConstraint(Sketcher.Constraint("DistanceY", 11, 2, 12, 1, Q("0.926 mm")))
sketch9.addConstraint(Sketcher.Constraint("DistanceY", 18, 1, 17, 2, Q("0.926 mm")))
sketch9.addConstraint(Sketcher.Constraint("Distance", 11, Q("3.5833 mm")))
sketch9.addConstraint(Sketcher.Constraint("DistanceX", 3, 1, 3, 2, Q("47.19822 mm")))
sketch9.addConstraint(Sketcher.Constraint("DistanceX", 15, 2, 15, 1, Q("47.19822 mm")))
sketch9.addConstraint(Sketcher.Constraint("DistanceY", 1, 2, 1, 1, Q("4.54533 mm")))
sketch9.addConstraint(Sketcher.Constraint("DistanceY", 5, 1, 5, 2, Q("4.54533 mm")))
sketch9.addConstraint(Sketcher.Constraint("DistanceY", 9, 1, 9, 2, Q("19.527181 mm")))
sketch9.addConstraint(Sketcher.Constraint("DistanceY", 13, 1, 13, 2, Q("3.315208 mm")))
sketch9.addConstraint(Sketcher.Constraint("DistanceY", 17, 2, 17, 1, Q("3.315208 mm")))
sketch9.addConstraint(Sketcher.Constraint("DistanceY", 21, 2, 21, 1, Q("19.527181 mm")))
sketch9.addConstraint(Sketcher.Constraint("DistanceY", 6, 3, 12, 3, Q("28.945501 mm")))
sketch9.addConstraint(Sketcher.Constraint("DistanceY", 12, 3, 16, 3, Q("3.315198 mm")))
sketch9.addConstraint(Sketcher.Constraint("DistanceY", 20, 3, 18, 3, Q("4.565098 mm")))
sketch9.addConstraint(Sketcher.Constraint("DistanceX", 0, 3, 2, 2, Q("4.999901 mm")))
sketch9.addConstraint(Sketcher.Constraint("DistanceY", 5, 2, 6, 1, Q("0.864701 mm")))
sketch9.addConstraint(Sketcher.Constraint("DistanceY", 6, 3, 6, 1, Q("0.864699 mm")))
sketch9.addConstraint(Sketcher.Constraint("DistanceY", 4, 2, 7, 2, Q("8.9662 mm")))
sketch9.addConstraint(Sketcher.Constraint("DistanceY", 10, 2, 12, 3, Q("4.102101 mm")))
sketch9.addConstraint(Sketcher.Constraint("DistanceY", 18, 3, 15, 2, Q("6.315199 mm")))
sketch9.addConstraint(Sketcher.Constraint("DistanceY", 17, 2, 16, 3, Q("3.315199 mm")))
sketch9.addConstraint(Sketcher.Constraint("DistanceY", 19, 2, 18, 1, Q("3.1761 mm")))
sketch9.addConstraint(Sketcher.Constraint("DistanceY", 1, 2, 22, 2, Q("8.9662 mm")))
sketch9.addConstraint(Sketcher.Constraint("DistanceY", 0, 1, 23, 2, Q("0.864701 mm")))
sketch9.addConstraint(Sketcher.Constraint("Distance", 23, Q("3.94383 mm")))
sketch9.addConstraint(Sketcher.Constraint("DistanceX", 0, 3, -1, 1, Q("28.599049 mm")))
sketch9.addConstraint(Sketcher.Constraint("DistanceY", 2, 3, -1, 1, Q("18.40302 mm")))
sketch9.addConstraint(Sketcher.Constraint("DistanceX", -1, 1, 4, 3, Q("23.599072 mm")))
sketch9.addConstraint(Sketcher.Constraint("DistanceY", 6, 3, -1, 1, Q("13.857688 mm")))
sketch9.addConstraint(Sketcher.Constraint("DistanceY", -1, 1, 10, 3, Q("10.52244 mm")))
sketch9.addConstraint(Sketcher.Constraint("DistanceX", -1, 1, 14, 3, Q("23.599072 mm")))
sketch9.addConstraint(Sketcher.Constraint("DistanceY", 0, 1, -1, 1, Q("13.85769 mm")))
sketch9.addConstraint(Sketcher.Constraint("DistanceX", -1, 1, 7, 2, Q("28.500849 mm")))
sketch9.addConstraint(Sketcher.Constraint("DistanceX", -1, 1, 14, 2, Q("23.599072 mm")))
sketch9.addConstraint(Sketcher.Constraint("DistanceX", 23, 2, -1, 1, Q("26.79573 mm")))
sketch9.addConstraint(Sketcher.Constraint("DistanceY", 6, 1, 8, 2, Q("3.988562 mm")))
sketch9.addConstraint(Sketcher.Constraint("DistanceY", 20, 2, 18, 3, Q("4.565061 mm")))
pad9 = body.newObject("PartDesign::Pad", "Pad008")
pad9.Profile = sketch9
pad9.Length = 0.5
body9 = doc.addObject("PartDesign::Body", "Body008")
body9.AllowCompound = True

# Sketch on XY plane
sketch10 = body9.newObject("Sketcher::SketchObject", "Sketch009")
sketch10.AttachmentSupport = (doc.getObject("XY_Plane008"), [""])
sketch10.MapMode = "FlatFace"
sketch10.addGeometry(Part.Circle(App.Vector(-36.599147, 0, 0), App.Vector(0, 0, 1), 1), False)
sketch10.addGeometry(Part.Circle(App.Vector(35.599147, 1, 0), App.Vector(0, 0, 1), 1), False)
sketch10.addConstraint(Sketcher.Constraint("Equal", 0, 1))
sketch10.addConstraint(Sketcher.Constraint("PointOnObject", 0, 3, -1))
sketch10.addConstraint(Sketcher.Constraint("Diameter", 0, Q("2 mm")))
sketch10.addConstraint(Sketcher.Constraint("DistanceY", -1, 1, 1, 3, Q("1 mm")))
sketch10.addConstraint(Sketcher.Constraint("DistanceX", 0, 3, -1, 1, Q("36.599147 mm")))
sketch10.addConstraint(Sketcher.Constraint("DistanceX", -1, 1, 1, 3, Q("35.599147 mm")))
pad10 = body9.newObject("PartDesign::Pad", "Pad009")
pad10.Profile = sketch10
pad10.Length = 0.5

doc.recompute()
